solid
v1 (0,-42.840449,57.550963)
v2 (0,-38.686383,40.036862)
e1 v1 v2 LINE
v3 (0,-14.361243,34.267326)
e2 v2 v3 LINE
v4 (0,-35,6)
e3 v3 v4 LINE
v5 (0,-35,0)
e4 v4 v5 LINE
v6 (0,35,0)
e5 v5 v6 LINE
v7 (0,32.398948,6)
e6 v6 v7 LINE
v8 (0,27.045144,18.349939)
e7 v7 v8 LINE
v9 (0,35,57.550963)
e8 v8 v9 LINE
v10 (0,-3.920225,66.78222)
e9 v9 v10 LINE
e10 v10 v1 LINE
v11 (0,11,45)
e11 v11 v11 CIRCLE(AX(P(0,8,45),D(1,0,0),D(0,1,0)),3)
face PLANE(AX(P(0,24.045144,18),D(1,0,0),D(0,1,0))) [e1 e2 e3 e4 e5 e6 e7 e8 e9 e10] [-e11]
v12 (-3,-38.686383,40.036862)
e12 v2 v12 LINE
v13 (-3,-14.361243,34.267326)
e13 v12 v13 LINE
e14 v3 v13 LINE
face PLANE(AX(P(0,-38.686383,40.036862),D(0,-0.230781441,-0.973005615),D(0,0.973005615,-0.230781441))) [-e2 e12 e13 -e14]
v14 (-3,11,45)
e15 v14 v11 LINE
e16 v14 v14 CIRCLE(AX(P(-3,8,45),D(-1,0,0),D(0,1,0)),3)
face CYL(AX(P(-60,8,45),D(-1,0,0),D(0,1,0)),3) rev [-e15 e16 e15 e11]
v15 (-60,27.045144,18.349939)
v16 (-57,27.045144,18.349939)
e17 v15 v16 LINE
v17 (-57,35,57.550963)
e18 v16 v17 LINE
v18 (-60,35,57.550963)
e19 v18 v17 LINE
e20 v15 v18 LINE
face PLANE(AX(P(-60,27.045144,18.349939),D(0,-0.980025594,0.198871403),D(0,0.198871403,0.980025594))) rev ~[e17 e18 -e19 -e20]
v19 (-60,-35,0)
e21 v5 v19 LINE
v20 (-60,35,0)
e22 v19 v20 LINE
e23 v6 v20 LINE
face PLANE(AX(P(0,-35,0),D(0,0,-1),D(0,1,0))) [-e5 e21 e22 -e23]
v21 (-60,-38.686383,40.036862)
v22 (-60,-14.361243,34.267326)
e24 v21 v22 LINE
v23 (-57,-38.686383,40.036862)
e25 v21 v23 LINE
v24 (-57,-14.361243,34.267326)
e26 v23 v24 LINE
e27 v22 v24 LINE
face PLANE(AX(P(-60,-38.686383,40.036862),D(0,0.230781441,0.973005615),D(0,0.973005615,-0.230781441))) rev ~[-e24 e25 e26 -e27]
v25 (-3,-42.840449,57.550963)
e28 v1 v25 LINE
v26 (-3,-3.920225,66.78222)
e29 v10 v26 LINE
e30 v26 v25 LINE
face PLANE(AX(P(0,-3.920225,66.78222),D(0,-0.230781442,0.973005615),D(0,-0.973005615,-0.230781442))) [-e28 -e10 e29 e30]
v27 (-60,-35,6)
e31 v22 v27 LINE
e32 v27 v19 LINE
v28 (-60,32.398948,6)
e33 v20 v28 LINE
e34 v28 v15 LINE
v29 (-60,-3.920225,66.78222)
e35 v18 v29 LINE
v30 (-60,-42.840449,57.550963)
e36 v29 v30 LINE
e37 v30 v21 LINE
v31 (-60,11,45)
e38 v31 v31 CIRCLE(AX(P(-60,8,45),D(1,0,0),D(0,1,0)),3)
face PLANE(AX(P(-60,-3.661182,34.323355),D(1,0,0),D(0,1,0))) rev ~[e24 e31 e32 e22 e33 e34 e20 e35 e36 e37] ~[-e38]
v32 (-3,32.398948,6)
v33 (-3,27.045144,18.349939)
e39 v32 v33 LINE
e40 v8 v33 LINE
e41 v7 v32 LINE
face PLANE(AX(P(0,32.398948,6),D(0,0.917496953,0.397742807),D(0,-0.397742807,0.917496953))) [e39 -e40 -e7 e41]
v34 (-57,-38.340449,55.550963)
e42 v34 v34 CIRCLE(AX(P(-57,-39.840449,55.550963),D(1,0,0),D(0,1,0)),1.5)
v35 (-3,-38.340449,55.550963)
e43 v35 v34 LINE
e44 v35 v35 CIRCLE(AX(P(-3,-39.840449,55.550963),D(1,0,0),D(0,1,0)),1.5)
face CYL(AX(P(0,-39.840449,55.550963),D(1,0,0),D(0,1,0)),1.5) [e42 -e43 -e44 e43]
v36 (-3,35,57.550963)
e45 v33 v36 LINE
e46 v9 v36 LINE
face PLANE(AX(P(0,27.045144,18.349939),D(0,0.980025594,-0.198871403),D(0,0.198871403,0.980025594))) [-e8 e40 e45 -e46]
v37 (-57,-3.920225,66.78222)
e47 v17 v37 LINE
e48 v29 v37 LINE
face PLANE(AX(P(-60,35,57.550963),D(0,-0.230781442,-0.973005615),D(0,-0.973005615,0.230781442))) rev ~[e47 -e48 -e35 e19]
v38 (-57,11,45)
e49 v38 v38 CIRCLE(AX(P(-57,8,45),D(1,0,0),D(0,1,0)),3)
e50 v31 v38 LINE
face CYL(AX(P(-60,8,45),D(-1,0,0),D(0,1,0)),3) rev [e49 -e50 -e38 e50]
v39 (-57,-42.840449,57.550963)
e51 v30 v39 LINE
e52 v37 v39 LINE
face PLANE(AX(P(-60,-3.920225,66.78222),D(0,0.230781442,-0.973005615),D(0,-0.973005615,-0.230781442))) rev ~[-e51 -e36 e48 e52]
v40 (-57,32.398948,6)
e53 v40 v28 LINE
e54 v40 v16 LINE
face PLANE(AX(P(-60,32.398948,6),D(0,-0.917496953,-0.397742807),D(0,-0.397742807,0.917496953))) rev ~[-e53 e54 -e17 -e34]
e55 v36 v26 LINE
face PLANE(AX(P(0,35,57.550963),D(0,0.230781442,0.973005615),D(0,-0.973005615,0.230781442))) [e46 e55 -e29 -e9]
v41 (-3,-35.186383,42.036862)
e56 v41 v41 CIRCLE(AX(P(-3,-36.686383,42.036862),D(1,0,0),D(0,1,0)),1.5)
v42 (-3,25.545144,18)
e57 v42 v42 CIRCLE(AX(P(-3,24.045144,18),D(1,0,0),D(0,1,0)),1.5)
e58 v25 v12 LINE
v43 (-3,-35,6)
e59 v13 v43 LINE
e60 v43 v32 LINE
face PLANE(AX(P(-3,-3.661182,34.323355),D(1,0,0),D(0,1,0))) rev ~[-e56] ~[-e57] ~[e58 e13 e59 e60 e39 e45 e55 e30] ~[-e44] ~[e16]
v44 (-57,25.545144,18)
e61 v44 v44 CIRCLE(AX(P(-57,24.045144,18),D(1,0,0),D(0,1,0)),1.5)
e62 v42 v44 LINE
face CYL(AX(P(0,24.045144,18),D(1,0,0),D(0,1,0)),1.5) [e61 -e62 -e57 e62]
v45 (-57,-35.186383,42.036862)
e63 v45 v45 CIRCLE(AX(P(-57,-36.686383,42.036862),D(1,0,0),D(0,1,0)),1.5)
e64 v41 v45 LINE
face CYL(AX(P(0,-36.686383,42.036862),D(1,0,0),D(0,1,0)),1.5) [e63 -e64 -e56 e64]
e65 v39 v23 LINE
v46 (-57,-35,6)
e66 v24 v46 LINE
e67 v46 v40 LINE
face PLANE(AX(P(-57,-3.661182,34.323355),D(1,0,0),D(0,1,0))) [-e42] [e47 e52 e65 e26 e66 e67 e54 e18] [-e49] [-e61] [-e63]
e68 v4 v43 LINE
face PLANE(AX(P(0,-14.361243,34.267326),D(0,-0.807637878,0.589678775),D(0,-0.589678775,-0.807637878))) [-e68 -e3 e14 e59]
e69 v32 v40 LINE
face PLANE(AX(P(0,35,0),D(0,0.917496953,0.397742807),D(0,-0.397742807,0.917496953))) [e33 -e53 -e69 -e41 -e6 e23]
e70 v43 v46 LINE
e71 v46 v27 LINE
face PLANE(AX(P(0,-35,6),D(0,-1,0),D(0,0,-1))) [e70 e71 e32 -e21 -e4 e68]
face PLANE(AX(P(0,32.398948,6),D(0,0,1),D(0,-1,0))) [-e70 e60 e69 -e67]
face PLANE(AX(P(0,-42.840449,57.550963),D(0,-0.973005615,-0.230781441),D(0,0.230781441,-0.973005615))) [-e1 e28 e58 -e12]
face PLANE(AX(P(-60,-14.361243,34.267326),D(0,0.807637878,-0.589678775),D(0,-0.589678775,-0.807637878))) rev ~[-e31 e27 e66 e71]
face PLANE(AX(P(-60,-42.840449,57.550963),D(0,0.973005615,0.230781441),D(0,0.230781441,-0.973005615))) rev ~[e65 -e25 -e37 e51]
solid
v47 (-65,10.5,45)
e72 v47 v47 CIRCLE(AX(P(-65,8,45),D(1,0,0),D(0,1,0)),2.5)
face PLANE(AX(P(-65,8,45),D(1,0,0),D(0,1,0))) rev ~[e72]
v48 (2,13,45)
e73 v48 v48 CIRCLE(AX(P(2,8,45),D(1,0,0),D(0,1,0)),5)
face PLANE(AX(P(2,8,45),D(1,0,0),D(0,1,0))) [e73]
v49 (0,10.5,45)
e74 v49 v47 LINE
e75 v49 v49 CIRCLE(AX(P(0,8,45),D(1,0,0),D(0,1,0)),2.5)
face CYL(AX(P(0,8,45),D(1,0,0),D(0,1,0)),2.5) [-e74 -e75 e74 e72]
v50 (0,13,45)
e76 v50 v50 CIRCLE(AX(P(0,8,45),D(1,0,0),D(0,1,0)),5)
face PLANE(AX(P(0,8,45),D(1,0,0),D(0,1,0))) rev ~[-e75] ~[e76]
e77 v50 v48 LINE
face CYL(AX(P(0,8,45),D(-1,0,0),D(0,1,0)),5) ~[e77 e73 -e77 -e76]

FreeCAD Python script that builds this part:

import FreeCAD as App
import Part
import Sketcher
from FreeCAD import Vector


def add_polygon(sketch, points):
    """Adds a closed chain of lines whose ends are joined by coincident constraints."""
    first, n = sketch.GeometryCount, len(points)
    for a, b in zip(points, points[1:] + points[:1]):
        sketch.addGeometry(Part.LineSegment(App.Vector(*a, 0), App.Vector(*b, 0)), False)
    for i in range(n):
        sketch.addConstraint(Sketcher.Constraint("Coincident", first + i, 2, first + (i + 1) % n, 1))

doc = App.newDocument("Part")
body = doc.addObject("PartDesign::Body", "Body")

sketch1 = doc.addObject("Sketcher::SketchObject", "Sketch")
body.addObject(sketch1)
sketch1.AttachmentSupport = (doc.YZ_Plane, [""])
sketch1.MapMode = "FlatFace"
add_polygon(sketch1, [(-35, 6), (-35, 0), (35, 0), (32, 6)])
sketch1.addConstraint([
    Sketcher.Constraint("Vertical", 0),
    Sketcher.Constraint("Horizontal", 1),
    Sketcher.Constraint("Horizontal", 3),
    Sketcher.Constraint("Symmetric", 0, 2, 1, 2, -1, 1),
    Sketcher.Constraint("DistanceX", 1, 1, 1, 2, 70.0),
    Sketcher.Constraint("DistanceY", 0, 2, 0, 1, 6.0),
    Sketcher.Constraint("DistanceX", 3, 2, 3, 1, 67.398948),
])
pad1 = doc.addObject("PartDesign::Pad", "Pad")
body.addObject(pad1)
pad1.Profile = sketch1
pad1.Length = 60
pad1.Reversed = True

sketch2 = doc.addObject("Sketcher::SketchObject", "Sketch001")
body.addObject(sketch2)
sketch2.AttachmentSupport = (doc.YZ_Plane, [""])
sketch2.MapMode = "FlatFace"
add_polygon(sketch2, [(-14, 34), (-35, 6), (32, 6), (27, 18), (35, 58), (-4, 67), (-43, 58), (-39, 40)])
sketch2.addConstraint([
    Sketcher.Constraint("Horizontal", 1),
    Sketcher.Constraint("Perpendicular", 5, 6),
    Sketcher.Constraint("Parallel", 4, 7),
    Sketcher.Constraint("Horizontal", 3, 2, 5, 2),
    Sketcher.Constraint("Equal", 3, 4),
    Sketcher.Constraint("Equal", 4, 5),
    Sketcher.Constraint("Distance", 0, 35.0),
    Sketcher.Constraint("Distance", 3, 40.0),
    Sketcher.Constraint("Distance", 6, 18.0),
    Sketcher.Constraint("Distance", 7, 25.0),
    Sketcher.Constraint("DistanceX", 0, 2, -1, 1, 35.0),
    Sketcher.Constraint("DistanceY", -1, 1, 0, 2, 6.0),
    Sketcher.Constraint("DistanceX", -1, 1, 3, 2, 35.0),
    Sketcher.Constraint("DistanceX", 1, 1, 1, 2, 67.398948),
    Sketcher.Constraint("DistanceY", 6, 2, 5, 2, 17.514101),
    Sketcher.Constraint("Distance", 2, 13.460469),
])
pad2 = doc.addObject("PartDesign::Pad", "Pad001")
body.addObject(pad2)
pad2.Profile = sketch2
pad2.Length = 3
pad2.Reversed = True

sketch3 = doc.addObject("Sketcher::SketchObject", "Sketch002")
body.addObject(sketch3)
sketch3.AttachmentSupport = (doc.YZ_Plane, [""])
sketch3.MapMode = "FlatFace"
sketch3.AttachmentOffset = App.Placement(Vector(0, 0, -60), App.Rotation())
add_polygon(sketch3, [(-38.7, 40), (-14.4, 34.3), (-35, 6), (32.4, 6), (27, 18.3), (35, 57.6), (-3.9, 66.8), (-42.8, 57.6)])
sketch3.addGeometry(Part.Circle(Vector(8, 45, 0), Vector(0, 0, 1), 3), False)
sketch3.addConstraint([
    Sketcher.Constraint("Horizontal", 2),
    Sketcher.Constraint("Parallel", 0, 5),
    Sketcher.Constraint("Perpendicular", 6, 7),
    Sketcher.Constraint("Horizontal", 4, 2, 6, 2),
    Sketcher.Constraint("Equal", 4, 5),
    Sketcher.Constraint("Equal", 5, 6),
    Sketcher.Constraint("Diameter", 8, 6.0),
    Sketcher.Constraint("Distance", 0, 25.0),
    Sketcher.Constraint("Distance", 1, 35.0),
    Sketcher.Constraint("Distance", 4, 40.0),
    Sketcher.Constraint("Distance", 7, 18.0),
    Sketcher.Constraint("DistanceX", -1, 1, 8, 3, 8.0),
    Sketcher.Constraint("DistanceY", -1, 1, 8, 3, 45.0),
    Sketcher.Constraint("DistanceX", 1, 2, -1, 1, 35.0),
    Sketcher.Constraint("DistanceY", -1, 1, 1, 2, 6.0),
    Sketcher.Constraint("DistanceX", -1, 1, 4, 2, 35.0),
    Sketcher.Constraint("DistanceX", 2, 1, 2, 2, 67.398948),
    Sketcher.Constraint("DistanceY", 7, 2, 6, 2, 17.514101),
    Sketcher.Constraint("Distance", 3, 13.460469),
])
pad3 = doc.addObject("PartDesign::Pad", "Pad002")
body.addObject(pad3)
pad3.Profile = sketch3
pad3.Length = 3

sketch4 = doc.addObject("Sketcher::SketchObject", "Sketch003")
body.addObject(sketch4)
sketch4.AttachmentSupport = (doc.YZ_Plane, [""])
sketch4.MapMode = "FlatFace"
sketch4.AttachmentOffset = App.Placement(Vector(0, 0, -60), App.Rotation())
sketch4.addGeometry(Part.Circle(Vector(8, 45, 0), Vector(0, 0, 1), 3), False)
sketch4.addConstraint([
    Sketcher.Constraint("Diameter", 0, 6.0),
    Sketcher.Constraint("DistanceX", -1, 1, 0, 3, 8.0),
    Sketcher.Constraint("DistanceY", -1, 1, 0, 3, 45.0),
])
pocket1 = doc.addObject("PartDesign::Pocket", "Pocket")
body.addObject(pocket1)
pocket1.Profile = sketch4
pocket1.Length = 60
pocket1.Reversed = True

sketch5 = doc.addObject("Sketcher::SketchObject", "Sketch004")
body.addObject(sketch5)
sketch5.AttachmentSupport = (doc.YZ_Plane, [""])
sketch5.MapMode = "FlatFace"
sketch5.addGeometry([
    Part.Circle(Vector(-39.8, 55.6, 0), Vector(0, 0, 1), 1.5),
    Part.Circle(Vector(-36.7, 42, 0), Vector(0, 0, 1), 1.5),
], False)
sketch5.addConstraint([
    Sketcher.Constraint("Equal", 0, 1),
    Sketcher.Constraint("Diameter", 0, 3.0),
    Sketcher.Constraint("DistanceY", 1, 3, 0, 3, 13.514101),
    Sketcher.Constraint("DistanceX", 0, 3, -1, 1, 39.840449),
    Sketcher.Constraint("DistanceY", -1, 1, 1, 3, 42.036862),
    Sketcher.Constraint("DistanceX", 1, 3, -1, 1, 36.686383),
])
pad4 = doc.addObject("PartDesign::Pad", "Pad003")
body.addObject(pad4)
pad4.Profile = sketch5
pad4.Length = 60
pad4.Reversed = True

sketch6 = doc.addObject("Sketcher::SketchObject", "Sketch005")
body.addObject(sketch6)
sketch6.AttachmentSupport = (doc.YZ_Plane, [""])
sketch6.MapMode = "FlatFace"
sketch6.addGeometry(Part.Circle(Vector(24, 18, 0), Vector(0, 0, 1), 1.5), False)
sketch6.addConstraint([
    Sketcher.Constraint("Diameter", 0, 3.0),
    Sketcher.Constraint("DistanceY", -1, 1, 0, 3, 18.0),
    Sketcher.Constraint("DistanceX", -1, 1, 0, 3, 24.045144),
])
pad5 = doc.addObject("PartDesign::Pad", "Pad004")
body.addObject(pad5)
pad5.Profile = sketch6
pad5.Length = 60
pad5.Reversed = True
body2 = doc.addObject("PartDesign::Body", "Body001")

sketch7 = doc.addObject("Sketcher::SketchObject", "Sketch006")
body2.addObject(sketch7)
sketch7.AttachmentSupport = (doc.getObject("YZ_Plane001"), [""])
sketch7.MapMode = "FlatFace"
sketch7.addGeometry(Part.Circle(Vector(8, 45, 0), Vector(0, 0, 1), 2.5), False)
sketch7.addConstraint([
    Sketcher.Constraint("Diameter", 0, 5.0),
    Sketcher.Constraint("DistanceX", -1, 1, 0, 3, 8.0),
    Sketcher.Constraint("DistanceY", -1, 1, 0, 3, 45.0),
])
pad6 = doc.addObject("PartDesign::Pad", "Pad005")
body2.addObject(pad6)
pad6.Profile = sketch7
pad6.Length = 65
pad6.Reversed = True

sketch8 = doc.addObject("Sketcher::SketchObject", "Sketch007")
body2.addObject(sketch8)
sketch8.AttachmentSupport = (doc.getObject("YZ_Plane001"), [""])
sketch8.MapMode = "FlatFace"
sketch8.addGeometry(Part.Circle(Vector(8, 45, 0), Vector(0, 0, 1), 5), False)
sketch8.addConstraint([
    Sketcher.Constraint("Diameter", 0, 10.0),
    Sketcher.Constraint("DistanceX", -1, 1, 0, 3, 8.0),
    Sketcher.Constraint("DistanceY", -1, 1, 0, 3, 45.0),
])
pad7 = doc.addObject("PartDesign::Pad", "Pad006")
body2.addObject(pad7)
pad7.Profile = sketch8
pad7.Length = 2

doc.recompute()
